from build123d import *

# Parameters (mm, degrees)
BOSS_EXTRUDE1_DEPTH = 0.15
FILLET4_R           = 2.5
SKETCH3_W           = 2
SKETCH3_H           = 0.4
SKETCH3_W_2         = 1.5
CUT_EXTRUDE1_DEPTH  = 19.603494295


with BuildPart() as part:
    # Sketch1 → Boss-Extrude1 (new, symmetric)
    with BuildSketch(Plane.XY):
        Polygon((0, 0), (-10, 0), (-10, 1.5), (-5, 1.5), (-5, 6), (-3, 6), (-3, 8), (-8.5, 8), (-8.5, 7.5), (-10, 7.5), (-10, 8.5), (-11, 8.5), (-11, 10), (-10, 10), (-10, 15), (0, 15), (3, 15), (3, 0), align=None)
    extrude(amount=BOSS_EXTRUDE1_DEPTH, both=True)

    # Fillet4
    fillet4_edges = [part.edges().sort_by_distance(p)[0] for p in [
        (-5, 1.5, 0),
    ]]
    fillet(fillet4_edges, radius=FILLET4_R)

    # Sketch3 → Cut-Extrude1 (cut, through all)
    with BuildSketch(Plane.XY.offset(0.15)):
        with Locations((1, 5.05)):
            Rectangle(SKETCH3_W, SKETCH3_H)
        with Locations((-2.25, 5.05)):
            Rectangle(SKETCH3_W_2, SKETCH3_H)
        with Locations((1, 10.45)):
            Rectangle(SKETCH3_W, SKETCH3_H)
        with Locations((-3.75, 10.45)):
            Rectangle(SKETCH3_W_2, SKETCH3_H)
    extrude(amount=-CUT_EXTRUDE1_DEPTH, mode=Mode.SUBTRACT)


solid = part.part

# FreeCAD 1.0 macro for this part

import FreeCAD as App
import Part
import Sketcher
from FreeCAD import Vector
Q = App.Units.Quantity


def edges_at(feature, points):
    """Names of the edges that pass closest to the given points."""
    edges = feature.Shape.Edges
    near = lambda p: min(range(len(edges)), key=lambda i: edges[i].distToShape(Part.Vertex(*p))[0])
    return sorted({f"Edge{near(p) + 1}" for p in points})

doc = App.newDocument("Part")
params = doc.addObject("Spreadsheet::Sheet", "Params")
for row, (alias, value) in enumerate([
    ("sketch1_width", "13 mm"),
    ("sketch1_width2", "1 mm"),
    ("sketch1_width3", "2 mm"),
    ("sketch1_width4", "5 mm"),
    ("sketch1_height", "15 mm"),
    ("pad1_length", "0.3 mm"),
    ("fillet_radius", "2.5 mm"),
    ("sketch2_width", "2 mm"),
    ("sketch2_width2", "1.5 mm"),
    ("sketch2_height", "0.4 mm"),
], start=1):
    params.set(f"A{row}", alias)
    params.set(f"B{row}", "=" + value)
    params.setAlias(f"B{row}", alias)

body = doc.addObject("PartDesign::Body", "Body")

sketch1 = doc.addObject("Sketcher::SketchObject", "Sketch")
body.addObject(sketch1)
sketch1.AttachmentSupport = (doc.XY_Plane, [""])
sketch1.MapMode = "FlatFace"
sketch1.addGeometry([
    Part.LineSegment(Vector(-10, 0, 0), Vector(3, 0, 0)),
    Part.LineSegment(Vector(3, 0, 0), Vector(3, 15, 0)),
    Part.LineSegment(Vector(3, 15, 0), Vector(-10, 15, 0)),
    Part.LineSegment(Vector(-10, 15, 0), Vector(-10, 10, 0)),
    Part.LineSegment(Vector(-10, 10, 0), Vector(-11, 10, 0)),
    Part.LineSegment(Vector(-11, 10, 0), Vector(-11, 8.5, 0)),
    Part.LineSegment(Vector(-11, 8.5, 0), Vector(-10, 8.5, 0)),
    Part.LineSegment(Vector(-10, 8.5, 0), Vector(-10, 7.5, 0)),
    Part.LineSegment(Vector(-10, 7.5, 0), Vector(-8.5, 7.5, 0)),
    Part.LineSegment(Vector(-8.5, 7.5, 0), Vector(-8.5, 8, 0)),
    Part.LineSegment(Vector(-8.5, 8, 0), Vector(-3, 8, 0)),
    Part.LineSegment(Vector(-3, 8, 0), Vector(-3, 6, 0)),
    Part.LineSegment(Vector(-3, 6, 0), Vector(-5, 6, 0)),
    Part.LineSegment(Vector(-5, 6, 0), Vector(-5, 1.5, 0)),
    Part.LineSegment(Vector(-5, 1.5, 0), Vector(-10, 1.5, 0)),
    Part.LineSegment(Vector(-10, 1.5, 0), Vector(-10, 0, 0)),
], False)
sketch1.addConstraint([
    Sketcher.Constraint("Coincident", 0, 2, 1, 1),
    Sketcher.Constraint("Coincident", 1, 2, 2, 1),
    Sketcher.Constraint("Coincident", 2, 2, 3, 1),
    Sketcher.Constraint("Coincident", 3, 2, 4, 1),
    Sketcher.Constraint("Coincident", 4, 2, 5, 1),
    Sketcher.Constraint("Coincident", 5, 2, 6, 1),
    Sketcher.Constraint("Coincident", 6, 2, 7, 1),
    Sketcher.Constraint("Coincident", 7, 2, 8, 1),
    Sketcher.Constraint("Coincident", 8, 2, 9, 1),
    Sketcher.Constraint("Coincident", 9, 2, 10, 1),
    Sketcher.Constraint("Coincident", 10, 2, 11, 1),
    Sketcher.Constraint("Coincident", 11, 2, 12, 1),
    Sketcher.Constraint("Coincident", 12, 2, 13, 1),
    Sketcher.Constraint("Coincident", 13, 2, 14, 1),
    Sketcher.Constraint("Coincident", 14, 2, 15, 1),
    Sketcher.Constraint("Coincident", 15, 2, 0, 1),
    Sketcher.Constraint("Horizontal", 0),
    Sketcher.Constraint("Vertical", 1),
    Sketcher.Constraint("Horizontal", 2),
    Sketcher.Constraint("Vertical", 3),
    Sketcher.Constraint("Horizontal", 4),
    Sketcher.Constraint("Vertical", 5),
    Sketcher.Constraint("Horizontal", 6),
    Sketcher.Constraint("Vertical", 7),
    Sketcher.Constraint("Horizontal", 8),
    Sketcher.Constraint("Vertical", 9),
    Sketcher.Constraint("Horizontal", 10),
    Sketcher.Constraint("Vertical", 11),
    Sketcher.Constraint("Horizontal", 12),
    Sketcher.Constraint("Vertical", 13),
    Sketcher.Constraint("Horizontal", 14),
    Sketcher.Constraint("Vertical", 15),
    Sketcher.Constraint("PointOnObject", 0, 2, -1),
    Sketcher.Constraint("Vertical", 3, 2, 6, 2),
    Sketcher.Constraint("Vertical", 7, 2, 14, 2),
    Sketcher.Constraint("Equal", 14, 3),
    Sketcher.Constraint("Equal", 8, 5),
    Sketcher.Constraint("Equal", 6, 7),
    Sketcher.Constraint("Equal", 12, 11),
    Sketcher.Constraint("Equal", 5, 15),
    Sketcher.Constraint("DistanceX", 0, 1, 0, 2, Q("13 mm")),
    Sketcher.Constraint("DistanceX", 4, 2, 4, 1, Q("1 mm")),
    Sketcher.Constraint("DistanceX", 12, 2, 12, 1, Q("2 mm")),
    Sketcher.Constraint("DistanceX", 14, 2, 14, 1, Q("5 mm")),
    Sketcher.Constraint("DistanceY", 1, 1, 1, 2, Q("15 mm")),
    Sketcher.Constraint("DistanceX", 8, 1, 8, 2, Q("1.5 mm")),
    Sketcher.Constraint("DistanceY", 9, 1, 9, 2, Q("0.5 mm")),
    Sketcher.Constraint("DistanceX", -1, 1, 0, 2, Q("3 mm")),
])
sketch1.setExpression("Constraints[40]", "Params.sketch1_width")
sketch1.setExpression("Constraints[41]", "Params.sketch1_width2")
sketch1.setExpression("Constraints[42]", "Params.sketch1_width3")
sketch1.setExpression("Constraints[43]", "Params.sketch1_width4")
sketch1.setExpression("Constraints[44]", "Params.sketch1_height")
pad1 = doc.addObject("PartDesign::Pad", "Pad")
body.addObject(pad1)
pad1.Profile = sketch1
pad1.setExpression("Length", "Params.pad1_length")
pad1.Midplane = True
doc.recompute()

fillet = doc.addObject("PartDesign::Fillet", "Fillet")
body.addObject(fillet)
fillet.Base = (pad1, edges_at(pad1, [(-5, 1.5, 0)]))
fillet.setExpression("Radius", "Params.fillet_radius")

sketch2 = doc.addObject("Sketcher::SketchObject", "Sketch001")
body.addObject(sketch2)
sketch2.AttachmentSupport = (doc.XY_Plane, [""])
sketch2.MapMode = "FlatFace"
sketch2.AttachmentOffset = App.Placement(Vector(0, 0, 0.15), App.Rotation())
sketch2.addGeometry([
    Part.LineSegment(Vector(0, 5.25, 0), Vector(0, 4.85, 0)),
    Part.LineSegment(Vector(0, 4.85, 0), Vector(2, 4.85, 0)),
    Part.LineSegment(Vector(2, 4.85, 0), Vector(2, 5.25, 0)),
    Part.LineSegment(Vector(2, 5.25, 0), Vector(0, 5.25, 0)),
    Part.LineSegment(Vector(-3, 5.25, 0), Vector(-3, 4.85, 0)),
    Part.LineSegment(Vector(-3, 4.85, 0), Vector(-1.5, 4.85, 0)),
    Part.LineSegment(Vector(-1.5, 4.85, 0), Vector(-1.5, 5.25, 0)),
    Part.LineSegment(Vector(-1.5, 5.25, 0), Vector(-3, 5.25, 0)),
    Part.LineSegment(Vector(0, 10.65, 0), Vector(0, 10.25, 0)),
    Part.LineSegment(Vector(0, 10.25, 0), Vector(2, 10.25, 0)),
    Part.LineSegment(Vector(2, 10.25, 0), Vector(2, 10.65, 0)),
    Part.LineSegment(Vector(2, 10.65, 0), Vector(0, 10.65, 0)),
    Part.LineSegment(Vector(-4.5, 10.65, 0), Vector(-4.5, 10.25, 0)),
    Part.LineSegment(Vector(-4.5, 10.25, 0), Vector(-3, 10.25, 0)),
    Part.LineSegment(Vector(-3, 10.25, 0), Vector(-3, 10.65, 0)),
    Part.LineSegment(Vector(-3, 10.65, 0), Vector(-4.5, 10.65, 0)),
], False)
sketch2.addConstraint([
    Sketcher.Constraint("Coincident", 0, 2, 1, 1),
    Sketcher.Constraint("Coincident", 1, 2, 2, 1),
    Sketcher.Constraint("Coincident", 2, 2, 3, 1),
    Sketcher.Constraint("Coincident", 3, 2, 0, 1),
    Sketcher.Constraint("Coincident", 4, 2, 5, 1),
    Sketcher.Constraint("Coincident", 5, 2, 6, 1),
    Sketcher.Constraint("Coincident", 6, 2, 7, 1),
    Sketcher.Constraint("Coincident", 7, 2, 4, 1),
    Sketcher.Constraint("Coincident", 8, 2, 9, 1),
    Sketcher.Constraint("Coincident", 9, 2, 10, 1),
    Sketcher.Constraint("Coincident", 10, 2, 11, 1),
    Sketcher.Constraint("Coincident", 11, 2, 8, 1),
    Sketcher.Constraint("Coincident", 12, 2, 13, 1),
    Sketcher.Constraint("Coincident", 13, 2, 14, 1),
    Sketcher.Constraint("Coincident", 14, 2, 15, 1),
    Sketcher.Constraint("Coincident", 15, 2, 12, 1),
    Sketcher.Constraint("Vertical", 0),
    Sketcher.Constraint("Horizontal", 1),
    Sketcher.Constraint("Vertical", 2),
    Sketcher.Constraint("Horizontal", 3),
    Sketcher.Constraint("Vertical", 4),
    Sketcher.Constraint("Horizontal", 5),
    Sketcher.Constraint("Vertical", 6),
    Sketcher.Constraint("Horizontal", 7),
    Sketcher.Constraint("Vertical", 8),
    Sketcher.Constraint("Horizontal", 9),
    Sketcher.Constraint("Vertical", 10),
    Sketcher.Constraint("Horizontal", 11),
    Sketcher.Constraint("Vertical", 12),
    Sketcher.Constraint("Horizontal", 13),
    Sketcher.Constraint("Vertical", 14),
    Sketcher.Constraint("Horizontal", 15),
    Sketcher.Constraint("PointOnObject", 0, 2, -2),
    Sketcher.Constraint("PointOnObject", 8, 2, -2),
    Sketcher.Constraint("Horizontal", 1, 2, 4, 2),
    Sketcher.Constraint("Horizontal", 3, 2, 6, 2),
    Sketcher.Constraint("Horizontal", 9, 2, 12, 2),
    Sketcher.Constraint("Horizontal", 11, 2, 14, 2),
    Sketcher.Constraint("Vertical", 2, 2, 9, 2),
    Sketcher.Constraint("Vertical", 7, 2, 13, 2),
    Sketcher.Constraint("Equal", 7, 13),
    Sketcher.Constraint("Equal", 6, 8),
    Sketcher.Constraint("DistanceX", 1, 1, 1, 2, Q("2 mm")),
    Sketcher.Constraint("DistanceX", 5, 1, 5, 2, Q("1.5 mm")),
    Sketcher.Constraint("DistanceY", 0, 2, 0, 1, Q("0.4 mm")),
    Sketcher.Constraint("DistanceX", 4, 2, -1, 1, Q("3 mm")),
    Sketcher.Constraint("DistanceY", 3, 2, 8, 2, Q("5 mm")),
    Sketcher.Constraint("DistanceY", -1, 1, 0, 2, Q("4.85 mm")),
])
sketch2.setExpression("Constraints[42]", "Params.sketch2_width")
sketch2.setExpression("Constraints[43]", "Params.sketch2_width2")
sketch2.setExpression("Constraints[44]", "Params.sketch2_height")
pocket1 = doc.addObject("PartDesign::Pocket", "Pocket")
body.addObject(pocket1)
pocket1.Profile = sketch2
pocket1.Type = "ThroughAll"

doc.recompute()
